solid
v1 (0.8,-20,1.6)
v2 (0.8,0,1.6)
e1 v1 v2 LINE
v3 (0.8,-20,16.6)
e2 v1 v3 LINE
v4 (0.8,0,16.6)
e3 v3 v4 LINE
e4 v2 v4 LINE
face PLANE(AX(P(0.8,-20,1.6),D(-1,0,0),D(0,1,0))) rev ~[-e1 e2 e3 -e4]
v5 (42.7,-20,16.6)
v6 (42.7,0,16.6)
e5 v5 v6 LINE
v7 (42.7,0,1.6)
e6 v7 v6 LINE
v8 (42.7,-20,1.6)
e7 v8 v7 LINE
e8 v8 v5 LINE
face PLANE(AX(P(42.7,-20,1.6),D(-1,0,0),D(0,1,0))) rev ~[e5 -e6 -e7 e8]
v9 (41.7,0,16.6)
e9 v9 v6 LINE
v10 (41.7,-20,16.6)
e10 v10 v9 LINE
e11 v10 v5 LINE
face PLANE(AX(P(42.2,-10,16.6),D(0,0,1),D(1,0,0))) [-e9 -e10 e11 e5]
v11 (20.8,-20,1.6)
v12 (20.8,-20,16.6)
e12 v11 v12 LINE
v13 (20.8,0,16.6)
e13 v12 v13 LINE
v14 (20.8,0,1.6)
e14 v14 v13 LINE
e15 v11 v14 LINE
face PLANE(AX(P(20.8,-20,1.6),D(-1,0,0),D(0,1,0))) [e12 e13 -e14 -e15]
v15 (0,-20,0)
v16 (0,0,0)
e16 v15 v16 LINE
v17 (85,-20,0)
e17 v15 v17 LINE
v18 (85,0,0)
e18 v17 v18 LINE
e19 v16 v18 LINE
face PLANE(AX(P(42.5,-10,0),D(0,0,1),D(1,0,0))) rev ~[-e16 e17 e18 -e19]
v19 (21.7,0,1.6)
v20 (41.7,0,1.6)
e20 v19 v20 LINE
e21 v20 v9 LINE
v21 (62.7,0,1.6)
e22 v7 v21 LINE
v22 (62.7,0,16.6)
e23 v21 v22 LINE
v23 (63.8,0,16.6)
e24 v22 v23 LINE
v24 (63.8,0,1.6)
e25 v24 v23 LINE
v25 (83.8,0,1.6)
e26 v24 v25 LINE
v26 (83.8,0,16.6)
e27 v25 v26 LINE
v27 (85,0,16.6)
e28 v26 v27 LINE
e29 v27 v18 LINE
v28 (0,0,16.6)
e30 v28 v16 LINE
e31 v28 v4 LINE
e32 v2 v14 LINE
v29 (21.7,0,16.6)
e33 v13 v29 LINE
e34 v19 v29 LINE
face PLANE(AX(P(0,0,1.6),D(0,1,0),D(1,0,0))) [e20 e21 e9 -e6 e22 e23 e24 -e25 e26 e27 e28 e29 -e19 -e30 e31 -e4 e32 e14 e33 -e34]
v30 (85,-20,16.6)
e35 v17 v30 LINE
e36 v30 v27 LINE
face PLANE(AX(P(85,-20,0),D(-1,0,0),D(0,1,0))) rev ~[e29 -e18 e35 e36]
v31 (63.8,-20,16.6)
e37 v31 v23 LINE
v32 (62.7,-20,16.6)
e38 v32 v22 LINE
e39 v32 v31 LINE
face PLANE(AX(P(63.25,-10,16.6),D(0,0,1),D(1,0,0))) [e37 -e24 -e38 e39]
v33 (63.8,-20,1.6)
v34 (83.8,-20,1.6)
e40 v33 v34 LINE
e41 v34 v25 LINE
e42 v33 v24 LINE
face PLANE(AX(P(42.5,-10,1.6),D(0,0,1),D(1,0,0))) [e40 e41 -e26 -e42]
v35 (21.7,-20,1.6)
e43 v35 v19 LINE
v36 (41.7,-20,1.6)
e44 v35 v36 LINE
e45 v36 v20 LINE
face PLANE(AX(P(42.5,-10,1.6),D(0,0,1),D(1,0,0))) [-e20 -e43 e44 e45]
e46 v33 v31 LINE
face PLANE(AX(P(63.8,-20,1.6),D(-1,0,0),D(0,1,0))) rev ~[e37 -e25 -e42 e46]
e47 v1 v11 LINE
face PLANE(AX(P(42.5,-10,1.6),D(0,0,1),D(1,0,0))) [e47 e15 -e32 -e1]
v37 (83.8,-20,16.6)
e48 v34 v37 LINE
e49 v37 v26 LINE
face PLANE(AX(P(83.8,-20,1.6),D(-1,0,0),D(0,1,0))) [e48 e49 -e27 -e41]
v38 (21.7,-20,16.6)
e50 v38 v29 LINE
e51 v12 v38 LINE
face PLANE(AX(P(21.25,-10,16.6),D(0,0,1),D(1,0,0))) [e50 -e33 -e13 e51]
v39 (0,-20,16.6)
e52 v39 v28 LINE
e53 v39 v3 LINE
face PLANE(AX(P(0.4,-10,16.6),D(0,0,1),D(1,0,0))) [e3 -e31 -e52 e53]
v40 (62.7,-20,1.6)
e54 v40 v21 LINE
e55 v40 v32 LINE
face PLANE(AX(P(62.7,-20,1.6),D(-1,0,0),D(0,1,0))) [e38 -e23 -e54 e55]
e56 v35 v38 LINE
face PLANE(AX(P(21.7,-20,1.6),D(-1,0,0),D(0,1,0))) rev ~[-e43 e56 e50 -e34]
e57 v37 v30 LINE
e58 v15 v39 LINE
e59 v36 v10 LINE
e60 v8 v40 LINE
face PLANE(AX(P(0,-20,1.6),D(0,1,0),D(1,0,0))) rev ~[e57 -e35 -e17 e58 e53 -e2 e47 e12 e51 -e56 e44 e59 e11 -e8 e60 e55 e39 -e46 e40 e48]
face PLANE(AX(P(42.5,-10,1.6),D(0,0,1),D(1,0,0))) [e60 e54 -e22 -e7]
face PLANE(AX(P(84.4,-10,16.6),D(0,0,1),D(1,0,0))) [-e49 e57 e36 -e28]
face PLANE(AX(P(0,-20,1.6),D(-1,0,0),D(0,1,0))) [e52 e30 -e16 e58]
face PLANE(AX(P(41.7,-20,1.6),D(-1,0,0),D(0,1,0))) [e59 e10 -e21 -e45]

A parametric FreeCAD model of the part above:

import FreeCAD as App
import Part
import Sketcher
from FreeCAD import Vector
Q = App.Units.Quantity


def add_polygon(sketch, points):
    """Adds a closed chain of lines whose ends are joined by coincident constraints."""
    first, n = sketch.GeometryCount, len(points)
    for a, b in zip(points, points[1:] + points[:1]):
        sketch.addGeometry(Part.LineSegment(App.Vector(*a, 0), App.Vector(*b, 0)), False)
    for i in range(n):
        sketch.addConstraint(Sketcher.Constraint("Coincident", first + i, 2, first + (i + 1) % n, 1))

doc = App.newDocument("Part")
body = doc.addObject("PartDesign::Body", "Body")

sketch1 = doc.addObject("Sketcher::SketchObject", "Sketch")
body.addObject(sketch1)
sketch1.AttachmentSupport = (doc.XY_Plane, [""])
sketch1.MapMode = "FlatFace"
add_polygon(sketch1, [(0, 0), (0, -20), (85, -20), (85, 0)])
sketch1.addConstraint(Sketcher.Constraint("Vertical", 0))
sketch1.addConstraint(Sketcher.Constraint("Horizontal", 1))
sketch1.addConstraint(Sketcher.Constraint("Vertical", 2))
sketch1.addConstraint(Sketcher.Constraint("Horizontal", 3))
sketch1.addConstraint(Sketcher.Constraint("Coincident", 3, 2, -1, 1))
sketch1.addConstraint(Sketcher.Constraint("DistanceX", 1, 1, 1, 2, Q("85 mm")))
sketch1.addConstraint(Sketcher.Constraint("DistanceY", 0, 2, 0, 1, Q("20 mm")))
pad1 = doc.addObject("PartDesign::Pad", "Pad")
body.addObject(pad1)
pad1.Profile = sketch1
pad1.Length = 1.6

sketch2 = doc.addObject("Sketcher::SketchObject", "Sketch001")
body.addObject(sketch2)
sketch2.AttachmentSupport = (doc.XY_Plane, [""])
sketch2.MapMode = "FlatFace"
sketch2.AttachmentOffset = App.Placement(Vector(0, 0, 1.6), App.Rotation())
add_polygon(sketch2, [(0, 0), (0, -20), (0.8, -20), (0.8, 0)])
add_polygon(sketch2, [(20.8, 0), (20.8, -20), (21.7, -20), (21.7, 0)])
add_polygon(sketch2, [(41.7, 0), (41.7, -20), (42.7, -20), (42.7, 0)])
add_polygon(sketch2, [(62.7, 0), (62.7, -20), (63.8, -20), (63.8, 0)])
add_polygon(sketch2, [(83.8, 0), (83.8, -20), (85, -20), (85, 0)])
sketch2.addConstraint(Sketcher.Constraint("Vertical", 0))
sketch2.addConstraint(Sketcher.Constraint("Horizontal", 1))
sketch2.addConstraint(Sketcher.Constraint("Vertical", 2))
sketch2.addConstraint(Sketcher.Constraint("Horizontal", 3))
sketch2.addConstraint(Sketcher.Constraint("Vertical", 4))
sketch2.addConstraint(Sketcher.Constraint("Horizontal", 5))
sketch2.addConstraint(Sketcher.Constraint("Vertical", 6))
sketch2.addConstraint(Sketcher.Constraint("Horizontal", 7))
sketch2.addConstraint(Sketcher.Constraint("Vertical", 8))
sketch2.addConstraint(Sketcher.Constraint("Horizontal", 9))
sketch2.addConstraint(Sketcher.Constraint("Vertical", 10))
sketch2.addConstraint(Sketcher.Constraint("Horizontal", 11))
sketch2.addConstraint(Sketcher.Constraint("Vertical", 12))
sketch2.addConstraint(Sketcher.Constraint("Horizontal", 13))
sketch2.addConstraint(Sketcher.Constraint("Vertical", 14))
sketch2.addConstraint(Sketcher.Constraint("Horizontal", 15))
sketch2.addConstraint(Sketcher.Constraint("Vertical", 16))
sketch2.addConstraint(Sketcher.Constraint("Horizontal", 17))
sketch2.addConstraint(Sketcher.Constraint("Vertical", 18))
sketch2.addConstraint(Sketcher.Constraint("Horizontal", 19))
sketch2.addConstraint(Sketcher.Constraint("Coincident", 3, 2, -1, 1))
sketch2.addConstraint(Sketcher.Constraint("PointOnObject", 6, 2, -1))
sketch2.addConstraint(Sketcher.Constraint("PointOnObject", 10, 2, -1))
sketch2.addConstraint(Sketcher.Constraint("PointOnObject", 14, 2, -1))
sketch2.addConstraint(Sketcher.Constraint("PointOnObject", 18, 2, -1))
sketch2.addConstraint(Sketcher.Constraint("Horizontal", 1, 2, 4, 2))
sketch2.addConstraint(Sketcher.Constraint("Horizontal", 5, 2, 8, 2))
sketch2.addConstraint(Sketcher.Constraint("Horizontal", 9, 2, 12, 2))
sketch2.addConstraint(Sketcher.Constraint("Horizontal", 13, 2, 16, 2))
sketch2.addConstraint(Sketcher.Constraint("DistanceX", 9, 1, 9, 2, Q("1 mm")))
sketch2.addConstraint(Sketcher.Constraint("DistanceY", 0, 2, 0, 1, Q("20 mm")))
sketch2.addConstraint(Sketcher.Constraint("DistanceX", 1, 1, 1, 2, Q("0.8 mm")))
sketch2.addConstraint(Sketcher.Constraint("DistanceX", 5, 1, 5, 2, Q("0.9 mm")))
sketch2.addConstraint(Sketcher.Constraint("DistanceX", 13, 1, 13, 2, Q("1.1 mm")))
sketch2.addConstraint(Sketcher.Constraint("DistanceX", 17, 1, 17, 2, Q("1.2 mm")))
sketch2.addConstraint(Sketcher.Constraint("DistanceX", -1, 1, 17, 2, Q("85 mm")))
sketch2.addConstraint(Sketcher.Constraint("DistanceX", 1, 2, 4, 2, Q("20 mm")))
sketch2.addConstraint(Sketcher.Constraint("DistanceX", 5, 2, 8, 2, Q("20 mm")))
sketch2.addConstraint(Sketcher.Constraint("DistanceX", 9, 2, 12, 2, Q("20 mm")))
pad2 = doc.addObject("PartDesign::Pad", "Pad001")
body.addObject(pad2)
pad2.Profile = sketch2
pad2.Length = 15

doc.recompute()
